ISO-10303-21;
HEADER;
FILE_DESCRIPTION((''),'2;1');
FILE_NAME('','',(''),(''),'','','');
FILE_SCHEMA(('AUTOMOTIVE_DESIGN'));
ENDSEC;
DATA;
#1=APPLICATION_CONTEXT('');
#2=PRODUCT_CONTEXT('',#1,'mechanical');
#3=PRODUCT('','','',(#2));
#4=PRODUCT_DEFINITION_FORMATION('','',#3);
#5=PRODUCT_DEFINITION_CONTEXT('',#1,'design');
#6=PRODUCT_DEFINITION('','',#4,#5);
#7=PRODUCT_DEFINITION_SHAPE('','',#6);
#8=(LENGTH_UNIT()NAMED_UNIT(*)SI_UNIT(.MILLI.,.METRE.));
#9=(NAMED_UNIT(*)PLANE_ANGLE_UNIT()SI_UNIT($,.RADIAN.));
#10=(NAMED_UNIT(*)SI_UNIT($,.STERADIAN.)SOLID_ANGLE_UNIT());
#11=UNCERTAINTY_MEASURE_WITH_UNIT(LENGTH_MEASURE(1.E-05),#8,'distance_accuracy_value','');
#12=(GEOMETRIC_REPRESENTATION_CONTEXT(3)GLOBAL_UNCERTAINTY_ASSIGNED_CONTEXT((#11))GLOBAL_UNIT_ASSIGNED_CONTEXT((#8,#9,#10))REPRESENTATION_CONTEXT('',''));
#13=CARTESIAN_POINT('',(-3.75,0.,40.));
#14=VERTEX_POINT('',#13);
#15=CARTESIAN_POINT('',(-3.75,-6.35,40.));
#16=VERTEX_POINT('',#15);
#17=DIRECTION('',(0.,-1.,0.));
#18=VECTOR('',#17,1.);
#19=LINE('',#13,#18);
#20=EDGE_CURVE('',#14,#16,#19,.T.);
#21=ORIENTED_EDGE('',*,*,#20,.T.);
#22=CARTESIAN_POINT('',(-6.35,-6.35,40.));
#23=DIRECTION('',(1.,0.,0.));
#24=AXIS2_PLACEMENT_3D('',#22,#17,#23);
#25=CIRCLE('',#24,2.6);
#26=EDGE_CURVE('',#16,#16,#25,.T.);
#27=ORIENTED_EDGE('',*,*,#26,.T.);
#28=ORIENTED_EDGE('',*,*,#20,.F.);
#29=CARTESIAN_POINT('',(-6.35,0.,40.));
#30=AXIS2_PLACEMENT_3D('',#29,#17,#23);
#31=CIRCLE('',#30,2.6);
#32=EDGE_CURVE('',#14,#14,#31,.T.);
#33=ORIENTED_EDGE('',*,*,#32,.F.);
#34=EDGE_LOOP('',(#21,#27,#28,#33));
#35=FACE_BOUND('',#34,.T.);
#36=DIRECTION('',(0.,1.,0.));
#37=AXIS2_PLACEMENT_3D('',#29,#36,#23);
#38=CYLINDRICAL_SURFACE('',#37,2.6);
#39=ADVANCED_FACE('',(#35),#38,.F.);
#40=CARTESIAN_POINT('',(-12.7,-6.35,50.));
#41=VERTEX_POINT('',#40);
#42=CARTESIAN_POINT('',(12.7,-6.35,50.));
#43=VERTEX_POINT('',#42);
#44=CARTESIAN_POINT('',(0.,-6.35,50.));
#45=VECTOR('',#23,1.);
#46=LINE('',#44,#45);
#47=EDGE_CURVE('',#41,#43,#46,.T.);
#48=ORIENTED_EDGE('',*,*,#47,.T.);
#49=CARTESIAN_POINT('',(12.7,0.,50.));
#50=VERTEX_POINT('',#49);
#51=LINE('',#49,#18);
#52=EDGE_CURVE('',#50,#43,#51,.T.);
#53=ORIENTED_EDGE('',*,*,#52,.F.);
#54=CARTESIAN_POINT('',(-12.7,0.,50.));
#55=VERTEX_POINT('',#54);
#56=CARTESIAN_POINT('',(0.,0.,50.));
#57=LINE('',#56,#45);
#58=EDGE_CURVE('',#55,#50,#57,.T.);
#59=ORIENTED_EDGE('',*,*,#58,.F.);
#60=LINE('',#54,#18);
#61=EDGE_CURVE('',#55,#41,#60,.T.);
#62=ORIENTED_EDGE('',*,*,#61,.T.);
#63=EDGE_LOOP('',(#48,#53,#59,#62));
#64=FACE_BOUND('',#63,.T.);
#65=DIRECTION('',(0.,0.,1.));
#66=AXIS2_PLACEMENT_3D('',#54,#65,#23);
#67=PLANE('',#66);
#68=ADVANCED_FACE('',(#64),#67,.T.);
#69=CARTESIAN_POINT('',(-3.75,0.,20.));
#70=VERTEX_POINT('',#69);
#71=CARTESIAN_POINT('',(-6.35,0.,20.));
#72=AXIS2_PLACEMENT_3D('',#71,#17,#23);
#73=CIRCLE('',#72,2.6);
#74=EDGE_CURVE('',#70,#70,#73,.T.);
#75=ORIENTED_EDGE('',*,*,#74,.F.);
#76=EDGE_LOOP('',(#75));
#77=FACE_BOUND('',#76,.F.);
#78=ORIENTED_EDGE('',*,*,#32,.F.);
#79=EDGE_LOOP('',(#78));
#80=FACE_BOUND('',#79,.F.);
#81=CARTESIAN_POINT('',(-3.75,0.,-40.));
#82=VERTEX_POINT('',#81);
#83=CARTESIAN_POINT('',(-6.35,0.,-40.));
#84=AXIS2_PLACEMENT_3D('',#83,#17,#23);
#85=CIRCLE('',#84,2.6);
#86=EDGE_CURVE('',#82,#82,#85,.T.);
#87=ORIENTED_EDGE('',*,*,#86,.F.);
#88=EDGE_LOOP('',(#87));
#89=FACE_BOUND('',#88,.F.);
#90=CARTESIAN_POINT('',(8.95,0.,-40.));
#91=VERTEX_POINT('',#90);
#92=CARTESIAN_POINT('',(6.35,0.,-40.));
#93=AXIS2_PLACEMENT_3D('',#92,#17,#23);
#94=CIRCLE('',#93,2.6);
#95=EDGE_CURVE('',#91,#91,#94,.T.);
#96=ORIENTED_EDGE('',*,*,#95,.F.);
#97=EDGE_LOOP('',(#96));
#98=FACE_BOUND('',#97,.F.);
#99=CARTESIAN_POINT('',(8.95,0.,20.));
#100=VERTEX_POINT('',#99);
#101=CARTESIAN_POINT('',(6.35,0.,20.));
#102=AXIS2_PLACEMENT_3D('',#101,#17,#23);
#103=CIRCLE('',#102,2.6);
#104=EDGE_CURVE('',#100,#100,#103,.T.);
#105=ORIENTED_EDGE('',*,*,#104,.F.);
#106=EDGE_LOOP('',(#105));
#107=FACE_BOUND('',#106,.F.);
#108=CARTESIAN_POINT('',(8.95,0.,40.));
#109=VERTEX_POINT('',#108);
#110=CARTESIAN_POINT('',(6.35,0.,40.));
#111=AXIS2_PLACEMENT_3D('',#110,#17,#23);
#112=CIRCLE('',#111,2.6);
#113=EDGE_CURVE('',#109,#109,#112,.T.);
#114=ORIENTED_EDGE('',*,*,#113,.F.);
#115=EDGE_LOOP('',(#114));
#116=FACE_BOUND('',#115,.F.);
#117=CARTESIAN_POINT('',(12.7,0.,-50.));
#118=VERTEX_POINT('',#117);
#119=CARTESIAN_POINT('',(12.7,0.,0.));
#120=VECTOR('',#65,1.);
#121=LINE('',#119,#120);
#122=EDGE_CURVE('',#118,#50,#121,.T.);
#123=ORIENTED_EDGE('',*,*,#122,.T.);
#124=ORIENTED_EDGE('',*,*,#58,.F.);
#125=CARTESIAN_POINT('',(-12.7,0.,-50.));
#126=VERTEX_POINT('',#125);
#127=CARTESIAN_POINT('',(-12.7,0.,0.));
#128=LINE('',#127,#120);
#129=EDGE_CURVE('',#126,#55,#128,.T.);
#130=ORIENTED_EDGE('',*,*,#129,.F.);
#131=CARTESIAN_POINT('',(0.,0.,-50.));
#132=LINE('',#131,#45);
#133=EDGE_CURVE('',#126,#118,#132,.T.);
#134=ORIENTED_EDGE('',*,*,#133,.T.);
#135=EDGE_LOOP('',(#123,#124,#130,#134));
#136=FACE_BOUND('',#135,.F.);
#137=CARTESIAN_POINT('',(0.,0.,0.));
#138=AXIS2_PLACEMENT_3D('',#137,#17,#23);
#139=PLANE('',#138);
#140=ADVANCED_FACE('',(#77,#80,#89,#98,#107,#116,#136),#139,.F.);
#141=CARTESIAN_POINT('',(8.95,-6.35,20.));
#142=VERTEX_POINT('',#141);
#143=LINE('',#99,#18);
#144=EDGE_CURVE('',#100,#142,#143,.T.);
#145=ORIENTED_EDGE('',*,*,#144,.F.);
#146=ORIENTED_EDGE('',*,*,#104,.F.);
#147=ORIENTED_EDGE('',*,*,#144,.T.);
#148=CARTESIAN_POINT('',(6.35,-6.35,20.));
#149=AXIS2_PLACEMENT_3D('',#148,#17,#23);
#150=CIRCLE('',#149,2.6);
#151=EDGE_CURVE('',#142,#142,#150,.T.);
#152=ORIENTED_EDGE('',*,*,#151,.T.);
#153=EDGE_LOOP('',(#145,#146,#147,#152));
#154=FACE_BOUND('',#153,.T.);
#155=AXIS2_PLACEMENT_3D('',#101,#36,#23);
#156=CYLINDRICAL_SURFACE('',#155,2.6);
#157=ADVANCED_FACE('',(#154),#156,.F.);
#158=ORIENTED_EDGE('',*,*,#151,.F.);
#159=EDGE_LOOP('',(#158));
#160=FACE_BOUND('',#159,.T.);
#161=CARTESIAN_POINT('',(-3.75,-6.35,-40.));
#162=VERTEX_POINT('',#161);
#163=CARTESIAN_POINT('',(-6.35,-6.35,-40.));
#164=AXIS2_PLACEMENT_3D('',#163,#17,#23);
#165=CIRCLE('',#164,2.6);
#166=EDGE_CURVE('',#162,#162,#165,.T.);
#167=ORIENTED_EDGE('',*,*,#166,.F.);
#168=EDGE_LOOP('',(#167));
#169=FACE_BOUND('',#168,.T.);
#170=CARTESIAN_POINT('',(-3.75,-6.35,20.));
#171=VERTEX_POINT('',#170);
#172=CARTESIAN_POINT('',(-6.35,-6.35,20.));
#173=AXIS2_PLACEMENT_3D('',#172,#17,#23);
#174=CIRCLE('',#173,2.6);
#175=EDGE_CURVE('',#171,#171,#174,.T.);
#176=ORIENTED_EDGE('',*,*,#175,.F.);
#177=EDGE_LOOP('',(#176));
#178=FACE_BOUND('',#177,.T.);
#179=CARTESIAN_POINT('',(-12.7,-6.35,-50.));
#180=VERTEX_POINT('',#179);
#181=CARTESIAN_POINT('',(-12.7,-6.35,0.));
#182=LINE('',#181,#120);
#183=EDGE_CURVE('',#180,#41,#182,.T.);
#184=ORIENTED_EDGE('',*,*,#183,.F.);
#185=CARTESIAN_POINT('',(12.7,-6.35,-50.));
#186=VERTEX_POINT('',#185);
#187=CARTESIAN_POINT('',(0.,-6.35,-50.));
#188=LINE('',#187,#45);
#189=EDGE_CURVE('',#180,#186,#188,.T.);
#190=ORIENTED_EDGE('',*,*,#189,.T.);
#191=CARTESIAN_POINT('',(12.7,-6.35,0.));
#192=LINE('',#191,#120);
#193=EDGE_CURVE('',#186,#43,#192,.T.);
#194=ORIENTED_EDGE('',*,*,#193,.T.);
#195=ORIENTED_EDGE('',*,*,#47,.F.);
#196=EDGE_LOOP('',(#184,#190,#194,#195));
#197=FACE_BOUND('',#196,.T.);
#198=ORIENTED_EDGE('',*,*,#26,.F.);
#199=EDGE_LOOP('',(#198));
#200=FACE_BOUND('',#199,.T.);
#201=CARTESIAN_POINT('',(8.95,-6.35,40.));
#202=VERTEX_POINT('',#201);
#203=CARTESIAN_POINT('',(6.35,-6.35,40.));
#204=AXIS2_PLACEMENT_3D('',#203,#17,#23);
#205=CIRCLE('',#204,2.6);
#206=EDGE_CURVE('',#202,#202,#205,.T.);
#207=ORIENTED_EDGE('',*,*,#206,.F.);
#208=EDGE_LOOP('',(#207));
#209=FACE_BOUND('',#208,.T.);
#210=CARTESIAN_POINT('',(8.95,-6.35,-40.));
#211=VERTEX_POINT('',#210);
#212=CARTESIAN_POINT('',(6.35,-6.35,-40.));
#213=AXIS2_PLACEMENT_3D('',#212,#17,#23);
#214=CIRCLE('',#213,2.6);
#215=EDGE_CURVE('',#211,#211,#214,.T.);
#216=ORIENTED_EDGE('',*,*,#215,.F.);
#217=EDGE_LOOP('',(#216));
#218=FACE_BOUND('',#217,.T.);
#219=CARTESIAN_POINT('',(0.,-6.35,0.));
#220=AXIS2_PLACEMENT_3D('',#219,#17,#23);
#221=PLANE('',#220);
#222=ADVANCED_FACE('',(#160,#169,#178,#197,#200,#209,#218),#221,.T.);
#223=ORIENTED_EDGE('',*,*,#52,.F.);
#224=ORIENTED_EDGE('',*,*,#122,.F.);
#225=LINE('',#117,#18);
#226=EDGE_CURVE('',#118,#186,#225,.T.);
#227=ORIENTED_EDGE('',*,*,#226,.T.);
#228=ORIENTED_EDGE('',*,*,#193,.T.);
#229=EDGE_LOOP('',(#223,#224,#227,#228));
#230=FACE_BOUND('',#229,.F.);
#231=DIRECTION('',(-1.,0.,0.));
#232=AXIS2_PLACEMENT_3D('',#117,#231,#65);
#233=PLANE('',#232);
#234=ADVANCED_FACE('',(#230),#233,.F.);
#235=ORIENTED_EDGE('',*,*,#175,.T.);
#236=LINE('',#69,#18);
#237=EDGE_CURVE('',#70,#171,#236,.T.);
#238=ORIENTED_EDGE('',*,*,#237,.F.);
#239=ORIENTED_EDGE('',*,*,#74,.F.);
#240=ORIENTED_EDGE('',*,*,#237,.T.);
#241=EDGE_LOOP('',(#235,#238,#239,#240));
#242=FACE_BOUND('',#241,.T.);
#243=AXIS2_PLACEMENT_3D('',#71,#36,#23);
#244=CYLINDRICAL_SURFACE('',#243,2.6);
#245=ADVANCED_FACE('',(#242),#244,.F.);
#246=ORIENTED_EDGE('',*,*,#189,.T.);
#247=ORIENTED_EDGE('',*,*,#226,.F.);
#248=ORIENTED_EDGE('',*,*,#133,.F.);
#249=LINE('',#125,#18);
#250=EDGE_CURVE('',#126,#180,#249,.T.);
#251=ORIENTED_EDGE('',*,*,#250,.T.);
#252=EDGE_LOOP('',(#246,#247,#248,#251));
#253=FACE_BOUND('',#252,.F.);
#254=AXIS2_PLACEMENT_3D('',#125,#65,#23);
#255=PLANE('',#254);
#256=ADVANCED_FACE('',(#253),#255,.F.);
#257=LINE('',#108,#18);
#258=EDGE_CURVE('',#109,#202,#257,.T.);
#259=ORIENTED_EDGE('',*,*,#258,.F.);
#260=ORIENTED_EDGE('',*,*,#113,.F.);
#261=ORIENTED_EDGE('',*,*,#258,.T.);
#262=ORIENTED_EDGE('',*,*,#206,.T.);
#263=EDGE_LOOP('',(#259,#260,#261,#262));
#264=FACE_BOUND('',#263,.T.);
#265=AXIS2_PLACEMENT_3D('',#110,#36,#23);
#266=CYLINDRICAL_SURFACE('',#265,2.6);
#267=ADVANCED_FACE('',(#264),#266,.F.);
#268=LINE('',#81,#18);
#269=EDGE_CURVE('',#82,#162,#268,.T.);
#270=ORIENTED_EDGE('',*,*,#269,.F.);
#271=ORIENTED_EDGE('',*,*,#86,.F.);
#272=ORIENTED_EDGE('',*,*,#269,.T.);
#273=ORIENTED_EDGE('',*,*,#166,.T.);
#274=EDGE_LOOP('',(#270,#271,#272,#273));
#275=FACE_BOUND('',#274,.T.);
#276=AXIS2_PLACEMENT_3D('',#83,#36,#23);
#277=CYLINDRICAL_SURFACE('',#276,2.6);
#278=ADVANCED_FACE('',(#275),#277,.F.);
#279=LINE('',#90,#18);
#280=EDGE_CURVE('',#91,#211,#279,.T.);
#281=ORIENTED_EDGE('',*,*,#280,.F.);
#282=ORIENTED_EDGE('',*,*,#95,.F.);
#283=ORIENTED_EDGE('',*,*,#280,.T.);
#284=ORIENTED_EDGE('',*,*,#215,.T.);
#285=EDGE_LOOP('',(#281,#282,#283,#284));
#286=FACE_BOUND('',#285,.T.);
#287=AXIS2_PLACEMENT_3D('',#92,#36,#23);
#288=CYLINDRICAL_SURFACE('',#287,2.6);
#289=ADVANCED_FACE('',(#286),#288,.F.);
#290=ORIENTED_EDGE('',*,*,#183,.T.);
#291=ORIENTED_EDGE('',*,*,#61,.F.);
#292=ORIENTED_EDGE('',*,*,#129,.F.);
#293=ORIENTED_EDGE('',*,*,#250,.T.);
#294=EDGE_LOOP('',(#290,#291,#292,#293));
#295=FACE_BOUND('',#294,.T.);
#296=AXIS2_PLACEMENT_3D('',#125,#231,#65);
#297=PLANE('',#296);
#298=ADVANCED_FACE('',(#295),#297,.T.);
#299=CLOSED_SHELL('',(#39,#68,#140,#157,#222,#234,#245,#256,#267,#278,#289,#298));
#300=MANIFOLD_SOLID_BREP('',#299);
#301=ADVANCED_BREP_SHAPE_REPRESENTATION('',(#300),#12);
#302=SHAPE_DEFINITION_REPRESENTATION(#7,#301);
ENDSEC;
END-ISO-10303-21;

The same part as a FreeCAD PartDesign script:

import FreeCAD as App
import Part
import Sketcher
from FreeCAD import Vector


def add_polygon(sketch, points):
    """Adds a closed chain of lines whose ends are joined by coincident constraints."""
    first, n = sketch.GeometryCount, len(points)
    for a, b in zip(points, points[1:] + points[:1]):
        sketch.addGeometry(Part.LineSegment(App.Vector(*a, 0), App.Vector(*b, 0)), False)
    for i in range(n):
        sketch.addConstraint(Sketcher.Constraint("Coincident", first + i, 2, first + (i + 1) % n, 1))

doc = App.newDocument("Part")
body = doc.addObject("PartDesign::Body", "Body")

sketch1 = body.newObject("Sketcher::SketchObject", "Sketch")
sketch1.AttachmentSupport = (doc.getObject("XZ_Plane"), [""])
sketch1.MapMode = "FlatFace"
add_polygon(sketch1, [(-12.7, 50), (-12.7, -50), (12.7, -50), (12.7, 50)])
sketch1.addGeometry(Part.Circle(Vector(-6.3, -40, 0), Vector(0, 0, 1), 2.6), False)
sketch1.addGeometry(Part.Circle(Vector(6.3, -40, 0), Vector(0, 0, 1), 2.6), False)
sketch1.addGeometry(Part.Circle(Vector(-6.3, 20, 0), Vector(0, 0, 1), 2.6), False)
sketch1.addGeometry(Part.Circle(Vector(-6.3, 40, 0), Vector(0, 0, 1), 2.6), False)
sketch1.addGeometry(Part.Circle(Vector(6.3, 20, 0), Vector(0, 0, 1), 2.6), False)
sketch1.addGeometry(Part.Circle(Vector(6.3, 40, 0), Vector(0, 0, 1), 2.6), False)
sketch1.addConstraint(Sketcher.Constraint("Vertical", 0))
sketch1.addConstraint(Sketcher.Constraint("Horizontal", 1))
sketch1.addConstraint(Sketcher.Constraint("Vertical", 2))
sketch1.addConstraint(Sketcher.Constraint("Horizontal", 3))
sketch1.addConstraint(Sketcher.Constraint("Equal", 4, 5))
sketch1.addConstraint(Sketcher.Constraint("Equal", 5, 6))
sketch1.addConstraint(Sketcher.Constraint("Equal", 6, 7))
sketch1.addConstraint(Sketcher.Constraint("Equal", 7, 8))
sketch1.addConstraint(Sketcher.Constraint("Equal", 8, 9))
sketch1.addConstraint(Sketcher.Constraint("Symmetric", 5, 3, 7, 3, -1, 1))
sketch1.addConstraint(Sketcher.Constraint("Symmetric", 4, 3, 9, 3, -1, 1))
sketch1.addConstraint(Sketcher.Constraint("Symmetric", 0, 2, 2, 2, -1, 1))
sketch1.addConstraint(Sketcher.Constraint("Symmetric", 4, 3, 5, 3, -2))
sketch1.addConstraint(Sketcher.Constraint("Symmetric", 6, 3, 8, 3, -2))
sketch1.addConstraint(Sketcher.Constraint("Vertical", 4, 3, 6, 3))
sketch1.addConstraint(Sketcher.Constraint("Diameter", 4, 5.2))
sketch1.addConstraint(Sketcher.Constraint("DistanceY", 0, 2, 0, 1, 100.0))
sketch1.addConstraint(Sketcher.Constraint("DistanceX", 1, 1, 1, 2, 25.4))
sketch1.addConstraint(Sketcher.Constraint("DistanceY", 4, 3, -1, 1, 40.0))
sketch1.addConstraint(Sketcher.Constraint("DistanceY", -1, 1, 6, 3, 20.0))
sketch1.addConstraint(Sketcher.Constraint("DistanceX", 4, 3, 5, 3, 12.7))
pad1 = body.newObject("PartDesign::Pad", "Pad")
pad1.Profile = sketch1
pad1.Length = 6.35

doc.recompute()
